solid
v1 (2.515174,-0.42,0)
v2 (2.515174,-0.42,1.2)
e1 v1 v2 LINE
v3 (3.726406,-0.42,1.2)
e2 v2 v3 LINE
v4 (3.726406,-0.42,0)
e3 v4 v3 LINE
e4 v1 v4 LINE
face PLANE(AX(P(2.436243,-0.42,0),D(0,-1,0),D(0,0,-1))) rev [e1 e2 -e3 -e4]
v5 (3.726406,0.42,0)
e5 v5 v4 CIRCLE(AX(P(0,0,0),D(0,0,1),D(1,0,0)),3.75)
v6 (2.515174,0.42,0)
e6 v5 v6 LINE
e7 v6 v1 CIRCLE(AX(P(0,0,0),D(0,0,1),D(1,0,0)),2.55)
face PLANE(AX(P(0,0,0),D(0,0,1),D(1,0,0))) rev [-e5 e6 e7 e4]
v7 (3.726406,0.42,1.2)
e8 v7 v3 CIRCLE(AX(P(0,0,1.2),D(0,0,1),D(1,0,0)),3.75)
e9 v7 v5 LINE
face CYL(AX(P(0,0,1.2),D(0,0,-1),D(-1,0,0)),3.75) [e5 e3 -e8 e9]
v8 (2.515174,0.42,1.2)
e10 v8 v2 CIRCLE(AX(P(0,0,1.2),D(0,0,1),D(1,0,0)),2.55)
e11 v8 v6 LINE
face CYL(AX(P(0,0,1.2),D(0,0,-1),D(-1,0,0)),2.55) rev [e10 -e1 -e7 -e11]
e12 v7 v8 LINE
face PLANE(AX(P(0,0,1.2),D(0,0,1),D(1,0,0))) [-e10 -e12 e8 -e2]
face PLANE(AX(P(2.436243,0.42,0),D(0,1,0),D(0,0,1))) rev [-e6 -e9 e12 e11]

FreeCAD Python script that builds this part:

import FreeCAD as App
import Part
import Sketcher
from FreeCAD import Vector

doc = App.newDocument("Part")
body = doc.addObject("PartDesign::Body", "Body")

sketch1 = body.newObject("Sketcher::SketchObject", "Sketch")
sketch1.AttachmentSupport = (doc.getObject("XY_Plane"), [""])
sketch1.MapMode = "FlatFace"
sketch1.addGeometry(Part.Circle(Vector(0, 0, 0), Vector(0, 0, 1), 3.8), False)
sketch1.addGeometry(Part.Circle(Vector(0, 0, 0), Vector(0, 0, 1), 2.5), False)
sketch1.addConstraint(Sketcher.Constraint("Coincident", 0, 3, -1, 1))
sketch1.addConstraint(Sketcher.Constraint("Coincident", 1, 3, -1, 1))
sketch1.addConstraint(Sketcher.Constraint("Diameter", 0, 7.5))
sketch1.addConstraint(Sketcher.Constraint("Diameter", 1, 5.1))
pad1 = body.newObject("PartDesign::Pad", "Pad")
pad1.Profile = sketch1
pad1.Length = 1.2

sketch2 = body.newObject("Sketcher::SketchObject", "Sketch001")
sketch2.AttachmentSupport = (doc.getObject("XY_Plane"), [""])
sketch2.MapMode = "FlatFace"
sketch2.AttachmentOffset = App.Placement(Vector(0, 0, 1.2), App.Rotation())
sketch2.addGeometry(Part.LineSegment(Vector(2.4, 0.4, 0), Vector(2.4, -0.4, 0)), False)
sketch2.addGeometry(Part.LineSegment(Vector(2.4, -0.4, 0), Vector(3.8, -0.4, 0)), False)
sketch2.addGeometry(Part.LineSegment(Vector(3.8, -0.4, 0), Vector(3.8, 0.4, 0)), False)
sketch2.addGeometry(Part.LineSegment(Vector(3.8, 0.4, 0), Vector(2.4, 0.4, 0)), False)
sketch2.addConstraint(Sketcher.Constraint("Coincident", 0, 2, 1, 1))
sketch2.addConstraint(Sketcher.Constraint("Coincident", 1, 2, 2, 1))
sketch2.addConstraint(Sketcher.Constraint("Coincident", 2, 2, 3, 1))
sketch2.addConstraint(Sketcher.Constraint("Coincident", 3, 2, 0, 1))
sketch2.addConstraint(Sketcher.Constraint("Vertical", 0))
sketch2.addConstraint(Sketcher.Constraint("Horizontal", 1))
sketch2.addConstraint(Sketcher.Constraint("Vertical", 2))
sketch2.addConstraint(Sketcher.Constraint("Horizontal", 3))
sketch2.addConstraint(Sketcher.Constraint("DistanceY", 0, 2, 0, 1, 0.84))
sketch2.addConstraint(Sketcher.Constraint("DistanceY", 0, 2, -1, 1, 0.42))
sketch2.addConstraint(Sketcher.Constraint("DistanceX", 1, 1, 1, 2, 1.400187))
sketch2.addConstraint(Sketcher.Constraint("DistanceX", -1, 1, 1, 2, 3.83643))
pocket1 = body.newObject("PartDesign::Pocket", "Pocket")
pocket1.Profile = sketch2
pocket1.Type = "ThroughAll"

doc.recompute()
